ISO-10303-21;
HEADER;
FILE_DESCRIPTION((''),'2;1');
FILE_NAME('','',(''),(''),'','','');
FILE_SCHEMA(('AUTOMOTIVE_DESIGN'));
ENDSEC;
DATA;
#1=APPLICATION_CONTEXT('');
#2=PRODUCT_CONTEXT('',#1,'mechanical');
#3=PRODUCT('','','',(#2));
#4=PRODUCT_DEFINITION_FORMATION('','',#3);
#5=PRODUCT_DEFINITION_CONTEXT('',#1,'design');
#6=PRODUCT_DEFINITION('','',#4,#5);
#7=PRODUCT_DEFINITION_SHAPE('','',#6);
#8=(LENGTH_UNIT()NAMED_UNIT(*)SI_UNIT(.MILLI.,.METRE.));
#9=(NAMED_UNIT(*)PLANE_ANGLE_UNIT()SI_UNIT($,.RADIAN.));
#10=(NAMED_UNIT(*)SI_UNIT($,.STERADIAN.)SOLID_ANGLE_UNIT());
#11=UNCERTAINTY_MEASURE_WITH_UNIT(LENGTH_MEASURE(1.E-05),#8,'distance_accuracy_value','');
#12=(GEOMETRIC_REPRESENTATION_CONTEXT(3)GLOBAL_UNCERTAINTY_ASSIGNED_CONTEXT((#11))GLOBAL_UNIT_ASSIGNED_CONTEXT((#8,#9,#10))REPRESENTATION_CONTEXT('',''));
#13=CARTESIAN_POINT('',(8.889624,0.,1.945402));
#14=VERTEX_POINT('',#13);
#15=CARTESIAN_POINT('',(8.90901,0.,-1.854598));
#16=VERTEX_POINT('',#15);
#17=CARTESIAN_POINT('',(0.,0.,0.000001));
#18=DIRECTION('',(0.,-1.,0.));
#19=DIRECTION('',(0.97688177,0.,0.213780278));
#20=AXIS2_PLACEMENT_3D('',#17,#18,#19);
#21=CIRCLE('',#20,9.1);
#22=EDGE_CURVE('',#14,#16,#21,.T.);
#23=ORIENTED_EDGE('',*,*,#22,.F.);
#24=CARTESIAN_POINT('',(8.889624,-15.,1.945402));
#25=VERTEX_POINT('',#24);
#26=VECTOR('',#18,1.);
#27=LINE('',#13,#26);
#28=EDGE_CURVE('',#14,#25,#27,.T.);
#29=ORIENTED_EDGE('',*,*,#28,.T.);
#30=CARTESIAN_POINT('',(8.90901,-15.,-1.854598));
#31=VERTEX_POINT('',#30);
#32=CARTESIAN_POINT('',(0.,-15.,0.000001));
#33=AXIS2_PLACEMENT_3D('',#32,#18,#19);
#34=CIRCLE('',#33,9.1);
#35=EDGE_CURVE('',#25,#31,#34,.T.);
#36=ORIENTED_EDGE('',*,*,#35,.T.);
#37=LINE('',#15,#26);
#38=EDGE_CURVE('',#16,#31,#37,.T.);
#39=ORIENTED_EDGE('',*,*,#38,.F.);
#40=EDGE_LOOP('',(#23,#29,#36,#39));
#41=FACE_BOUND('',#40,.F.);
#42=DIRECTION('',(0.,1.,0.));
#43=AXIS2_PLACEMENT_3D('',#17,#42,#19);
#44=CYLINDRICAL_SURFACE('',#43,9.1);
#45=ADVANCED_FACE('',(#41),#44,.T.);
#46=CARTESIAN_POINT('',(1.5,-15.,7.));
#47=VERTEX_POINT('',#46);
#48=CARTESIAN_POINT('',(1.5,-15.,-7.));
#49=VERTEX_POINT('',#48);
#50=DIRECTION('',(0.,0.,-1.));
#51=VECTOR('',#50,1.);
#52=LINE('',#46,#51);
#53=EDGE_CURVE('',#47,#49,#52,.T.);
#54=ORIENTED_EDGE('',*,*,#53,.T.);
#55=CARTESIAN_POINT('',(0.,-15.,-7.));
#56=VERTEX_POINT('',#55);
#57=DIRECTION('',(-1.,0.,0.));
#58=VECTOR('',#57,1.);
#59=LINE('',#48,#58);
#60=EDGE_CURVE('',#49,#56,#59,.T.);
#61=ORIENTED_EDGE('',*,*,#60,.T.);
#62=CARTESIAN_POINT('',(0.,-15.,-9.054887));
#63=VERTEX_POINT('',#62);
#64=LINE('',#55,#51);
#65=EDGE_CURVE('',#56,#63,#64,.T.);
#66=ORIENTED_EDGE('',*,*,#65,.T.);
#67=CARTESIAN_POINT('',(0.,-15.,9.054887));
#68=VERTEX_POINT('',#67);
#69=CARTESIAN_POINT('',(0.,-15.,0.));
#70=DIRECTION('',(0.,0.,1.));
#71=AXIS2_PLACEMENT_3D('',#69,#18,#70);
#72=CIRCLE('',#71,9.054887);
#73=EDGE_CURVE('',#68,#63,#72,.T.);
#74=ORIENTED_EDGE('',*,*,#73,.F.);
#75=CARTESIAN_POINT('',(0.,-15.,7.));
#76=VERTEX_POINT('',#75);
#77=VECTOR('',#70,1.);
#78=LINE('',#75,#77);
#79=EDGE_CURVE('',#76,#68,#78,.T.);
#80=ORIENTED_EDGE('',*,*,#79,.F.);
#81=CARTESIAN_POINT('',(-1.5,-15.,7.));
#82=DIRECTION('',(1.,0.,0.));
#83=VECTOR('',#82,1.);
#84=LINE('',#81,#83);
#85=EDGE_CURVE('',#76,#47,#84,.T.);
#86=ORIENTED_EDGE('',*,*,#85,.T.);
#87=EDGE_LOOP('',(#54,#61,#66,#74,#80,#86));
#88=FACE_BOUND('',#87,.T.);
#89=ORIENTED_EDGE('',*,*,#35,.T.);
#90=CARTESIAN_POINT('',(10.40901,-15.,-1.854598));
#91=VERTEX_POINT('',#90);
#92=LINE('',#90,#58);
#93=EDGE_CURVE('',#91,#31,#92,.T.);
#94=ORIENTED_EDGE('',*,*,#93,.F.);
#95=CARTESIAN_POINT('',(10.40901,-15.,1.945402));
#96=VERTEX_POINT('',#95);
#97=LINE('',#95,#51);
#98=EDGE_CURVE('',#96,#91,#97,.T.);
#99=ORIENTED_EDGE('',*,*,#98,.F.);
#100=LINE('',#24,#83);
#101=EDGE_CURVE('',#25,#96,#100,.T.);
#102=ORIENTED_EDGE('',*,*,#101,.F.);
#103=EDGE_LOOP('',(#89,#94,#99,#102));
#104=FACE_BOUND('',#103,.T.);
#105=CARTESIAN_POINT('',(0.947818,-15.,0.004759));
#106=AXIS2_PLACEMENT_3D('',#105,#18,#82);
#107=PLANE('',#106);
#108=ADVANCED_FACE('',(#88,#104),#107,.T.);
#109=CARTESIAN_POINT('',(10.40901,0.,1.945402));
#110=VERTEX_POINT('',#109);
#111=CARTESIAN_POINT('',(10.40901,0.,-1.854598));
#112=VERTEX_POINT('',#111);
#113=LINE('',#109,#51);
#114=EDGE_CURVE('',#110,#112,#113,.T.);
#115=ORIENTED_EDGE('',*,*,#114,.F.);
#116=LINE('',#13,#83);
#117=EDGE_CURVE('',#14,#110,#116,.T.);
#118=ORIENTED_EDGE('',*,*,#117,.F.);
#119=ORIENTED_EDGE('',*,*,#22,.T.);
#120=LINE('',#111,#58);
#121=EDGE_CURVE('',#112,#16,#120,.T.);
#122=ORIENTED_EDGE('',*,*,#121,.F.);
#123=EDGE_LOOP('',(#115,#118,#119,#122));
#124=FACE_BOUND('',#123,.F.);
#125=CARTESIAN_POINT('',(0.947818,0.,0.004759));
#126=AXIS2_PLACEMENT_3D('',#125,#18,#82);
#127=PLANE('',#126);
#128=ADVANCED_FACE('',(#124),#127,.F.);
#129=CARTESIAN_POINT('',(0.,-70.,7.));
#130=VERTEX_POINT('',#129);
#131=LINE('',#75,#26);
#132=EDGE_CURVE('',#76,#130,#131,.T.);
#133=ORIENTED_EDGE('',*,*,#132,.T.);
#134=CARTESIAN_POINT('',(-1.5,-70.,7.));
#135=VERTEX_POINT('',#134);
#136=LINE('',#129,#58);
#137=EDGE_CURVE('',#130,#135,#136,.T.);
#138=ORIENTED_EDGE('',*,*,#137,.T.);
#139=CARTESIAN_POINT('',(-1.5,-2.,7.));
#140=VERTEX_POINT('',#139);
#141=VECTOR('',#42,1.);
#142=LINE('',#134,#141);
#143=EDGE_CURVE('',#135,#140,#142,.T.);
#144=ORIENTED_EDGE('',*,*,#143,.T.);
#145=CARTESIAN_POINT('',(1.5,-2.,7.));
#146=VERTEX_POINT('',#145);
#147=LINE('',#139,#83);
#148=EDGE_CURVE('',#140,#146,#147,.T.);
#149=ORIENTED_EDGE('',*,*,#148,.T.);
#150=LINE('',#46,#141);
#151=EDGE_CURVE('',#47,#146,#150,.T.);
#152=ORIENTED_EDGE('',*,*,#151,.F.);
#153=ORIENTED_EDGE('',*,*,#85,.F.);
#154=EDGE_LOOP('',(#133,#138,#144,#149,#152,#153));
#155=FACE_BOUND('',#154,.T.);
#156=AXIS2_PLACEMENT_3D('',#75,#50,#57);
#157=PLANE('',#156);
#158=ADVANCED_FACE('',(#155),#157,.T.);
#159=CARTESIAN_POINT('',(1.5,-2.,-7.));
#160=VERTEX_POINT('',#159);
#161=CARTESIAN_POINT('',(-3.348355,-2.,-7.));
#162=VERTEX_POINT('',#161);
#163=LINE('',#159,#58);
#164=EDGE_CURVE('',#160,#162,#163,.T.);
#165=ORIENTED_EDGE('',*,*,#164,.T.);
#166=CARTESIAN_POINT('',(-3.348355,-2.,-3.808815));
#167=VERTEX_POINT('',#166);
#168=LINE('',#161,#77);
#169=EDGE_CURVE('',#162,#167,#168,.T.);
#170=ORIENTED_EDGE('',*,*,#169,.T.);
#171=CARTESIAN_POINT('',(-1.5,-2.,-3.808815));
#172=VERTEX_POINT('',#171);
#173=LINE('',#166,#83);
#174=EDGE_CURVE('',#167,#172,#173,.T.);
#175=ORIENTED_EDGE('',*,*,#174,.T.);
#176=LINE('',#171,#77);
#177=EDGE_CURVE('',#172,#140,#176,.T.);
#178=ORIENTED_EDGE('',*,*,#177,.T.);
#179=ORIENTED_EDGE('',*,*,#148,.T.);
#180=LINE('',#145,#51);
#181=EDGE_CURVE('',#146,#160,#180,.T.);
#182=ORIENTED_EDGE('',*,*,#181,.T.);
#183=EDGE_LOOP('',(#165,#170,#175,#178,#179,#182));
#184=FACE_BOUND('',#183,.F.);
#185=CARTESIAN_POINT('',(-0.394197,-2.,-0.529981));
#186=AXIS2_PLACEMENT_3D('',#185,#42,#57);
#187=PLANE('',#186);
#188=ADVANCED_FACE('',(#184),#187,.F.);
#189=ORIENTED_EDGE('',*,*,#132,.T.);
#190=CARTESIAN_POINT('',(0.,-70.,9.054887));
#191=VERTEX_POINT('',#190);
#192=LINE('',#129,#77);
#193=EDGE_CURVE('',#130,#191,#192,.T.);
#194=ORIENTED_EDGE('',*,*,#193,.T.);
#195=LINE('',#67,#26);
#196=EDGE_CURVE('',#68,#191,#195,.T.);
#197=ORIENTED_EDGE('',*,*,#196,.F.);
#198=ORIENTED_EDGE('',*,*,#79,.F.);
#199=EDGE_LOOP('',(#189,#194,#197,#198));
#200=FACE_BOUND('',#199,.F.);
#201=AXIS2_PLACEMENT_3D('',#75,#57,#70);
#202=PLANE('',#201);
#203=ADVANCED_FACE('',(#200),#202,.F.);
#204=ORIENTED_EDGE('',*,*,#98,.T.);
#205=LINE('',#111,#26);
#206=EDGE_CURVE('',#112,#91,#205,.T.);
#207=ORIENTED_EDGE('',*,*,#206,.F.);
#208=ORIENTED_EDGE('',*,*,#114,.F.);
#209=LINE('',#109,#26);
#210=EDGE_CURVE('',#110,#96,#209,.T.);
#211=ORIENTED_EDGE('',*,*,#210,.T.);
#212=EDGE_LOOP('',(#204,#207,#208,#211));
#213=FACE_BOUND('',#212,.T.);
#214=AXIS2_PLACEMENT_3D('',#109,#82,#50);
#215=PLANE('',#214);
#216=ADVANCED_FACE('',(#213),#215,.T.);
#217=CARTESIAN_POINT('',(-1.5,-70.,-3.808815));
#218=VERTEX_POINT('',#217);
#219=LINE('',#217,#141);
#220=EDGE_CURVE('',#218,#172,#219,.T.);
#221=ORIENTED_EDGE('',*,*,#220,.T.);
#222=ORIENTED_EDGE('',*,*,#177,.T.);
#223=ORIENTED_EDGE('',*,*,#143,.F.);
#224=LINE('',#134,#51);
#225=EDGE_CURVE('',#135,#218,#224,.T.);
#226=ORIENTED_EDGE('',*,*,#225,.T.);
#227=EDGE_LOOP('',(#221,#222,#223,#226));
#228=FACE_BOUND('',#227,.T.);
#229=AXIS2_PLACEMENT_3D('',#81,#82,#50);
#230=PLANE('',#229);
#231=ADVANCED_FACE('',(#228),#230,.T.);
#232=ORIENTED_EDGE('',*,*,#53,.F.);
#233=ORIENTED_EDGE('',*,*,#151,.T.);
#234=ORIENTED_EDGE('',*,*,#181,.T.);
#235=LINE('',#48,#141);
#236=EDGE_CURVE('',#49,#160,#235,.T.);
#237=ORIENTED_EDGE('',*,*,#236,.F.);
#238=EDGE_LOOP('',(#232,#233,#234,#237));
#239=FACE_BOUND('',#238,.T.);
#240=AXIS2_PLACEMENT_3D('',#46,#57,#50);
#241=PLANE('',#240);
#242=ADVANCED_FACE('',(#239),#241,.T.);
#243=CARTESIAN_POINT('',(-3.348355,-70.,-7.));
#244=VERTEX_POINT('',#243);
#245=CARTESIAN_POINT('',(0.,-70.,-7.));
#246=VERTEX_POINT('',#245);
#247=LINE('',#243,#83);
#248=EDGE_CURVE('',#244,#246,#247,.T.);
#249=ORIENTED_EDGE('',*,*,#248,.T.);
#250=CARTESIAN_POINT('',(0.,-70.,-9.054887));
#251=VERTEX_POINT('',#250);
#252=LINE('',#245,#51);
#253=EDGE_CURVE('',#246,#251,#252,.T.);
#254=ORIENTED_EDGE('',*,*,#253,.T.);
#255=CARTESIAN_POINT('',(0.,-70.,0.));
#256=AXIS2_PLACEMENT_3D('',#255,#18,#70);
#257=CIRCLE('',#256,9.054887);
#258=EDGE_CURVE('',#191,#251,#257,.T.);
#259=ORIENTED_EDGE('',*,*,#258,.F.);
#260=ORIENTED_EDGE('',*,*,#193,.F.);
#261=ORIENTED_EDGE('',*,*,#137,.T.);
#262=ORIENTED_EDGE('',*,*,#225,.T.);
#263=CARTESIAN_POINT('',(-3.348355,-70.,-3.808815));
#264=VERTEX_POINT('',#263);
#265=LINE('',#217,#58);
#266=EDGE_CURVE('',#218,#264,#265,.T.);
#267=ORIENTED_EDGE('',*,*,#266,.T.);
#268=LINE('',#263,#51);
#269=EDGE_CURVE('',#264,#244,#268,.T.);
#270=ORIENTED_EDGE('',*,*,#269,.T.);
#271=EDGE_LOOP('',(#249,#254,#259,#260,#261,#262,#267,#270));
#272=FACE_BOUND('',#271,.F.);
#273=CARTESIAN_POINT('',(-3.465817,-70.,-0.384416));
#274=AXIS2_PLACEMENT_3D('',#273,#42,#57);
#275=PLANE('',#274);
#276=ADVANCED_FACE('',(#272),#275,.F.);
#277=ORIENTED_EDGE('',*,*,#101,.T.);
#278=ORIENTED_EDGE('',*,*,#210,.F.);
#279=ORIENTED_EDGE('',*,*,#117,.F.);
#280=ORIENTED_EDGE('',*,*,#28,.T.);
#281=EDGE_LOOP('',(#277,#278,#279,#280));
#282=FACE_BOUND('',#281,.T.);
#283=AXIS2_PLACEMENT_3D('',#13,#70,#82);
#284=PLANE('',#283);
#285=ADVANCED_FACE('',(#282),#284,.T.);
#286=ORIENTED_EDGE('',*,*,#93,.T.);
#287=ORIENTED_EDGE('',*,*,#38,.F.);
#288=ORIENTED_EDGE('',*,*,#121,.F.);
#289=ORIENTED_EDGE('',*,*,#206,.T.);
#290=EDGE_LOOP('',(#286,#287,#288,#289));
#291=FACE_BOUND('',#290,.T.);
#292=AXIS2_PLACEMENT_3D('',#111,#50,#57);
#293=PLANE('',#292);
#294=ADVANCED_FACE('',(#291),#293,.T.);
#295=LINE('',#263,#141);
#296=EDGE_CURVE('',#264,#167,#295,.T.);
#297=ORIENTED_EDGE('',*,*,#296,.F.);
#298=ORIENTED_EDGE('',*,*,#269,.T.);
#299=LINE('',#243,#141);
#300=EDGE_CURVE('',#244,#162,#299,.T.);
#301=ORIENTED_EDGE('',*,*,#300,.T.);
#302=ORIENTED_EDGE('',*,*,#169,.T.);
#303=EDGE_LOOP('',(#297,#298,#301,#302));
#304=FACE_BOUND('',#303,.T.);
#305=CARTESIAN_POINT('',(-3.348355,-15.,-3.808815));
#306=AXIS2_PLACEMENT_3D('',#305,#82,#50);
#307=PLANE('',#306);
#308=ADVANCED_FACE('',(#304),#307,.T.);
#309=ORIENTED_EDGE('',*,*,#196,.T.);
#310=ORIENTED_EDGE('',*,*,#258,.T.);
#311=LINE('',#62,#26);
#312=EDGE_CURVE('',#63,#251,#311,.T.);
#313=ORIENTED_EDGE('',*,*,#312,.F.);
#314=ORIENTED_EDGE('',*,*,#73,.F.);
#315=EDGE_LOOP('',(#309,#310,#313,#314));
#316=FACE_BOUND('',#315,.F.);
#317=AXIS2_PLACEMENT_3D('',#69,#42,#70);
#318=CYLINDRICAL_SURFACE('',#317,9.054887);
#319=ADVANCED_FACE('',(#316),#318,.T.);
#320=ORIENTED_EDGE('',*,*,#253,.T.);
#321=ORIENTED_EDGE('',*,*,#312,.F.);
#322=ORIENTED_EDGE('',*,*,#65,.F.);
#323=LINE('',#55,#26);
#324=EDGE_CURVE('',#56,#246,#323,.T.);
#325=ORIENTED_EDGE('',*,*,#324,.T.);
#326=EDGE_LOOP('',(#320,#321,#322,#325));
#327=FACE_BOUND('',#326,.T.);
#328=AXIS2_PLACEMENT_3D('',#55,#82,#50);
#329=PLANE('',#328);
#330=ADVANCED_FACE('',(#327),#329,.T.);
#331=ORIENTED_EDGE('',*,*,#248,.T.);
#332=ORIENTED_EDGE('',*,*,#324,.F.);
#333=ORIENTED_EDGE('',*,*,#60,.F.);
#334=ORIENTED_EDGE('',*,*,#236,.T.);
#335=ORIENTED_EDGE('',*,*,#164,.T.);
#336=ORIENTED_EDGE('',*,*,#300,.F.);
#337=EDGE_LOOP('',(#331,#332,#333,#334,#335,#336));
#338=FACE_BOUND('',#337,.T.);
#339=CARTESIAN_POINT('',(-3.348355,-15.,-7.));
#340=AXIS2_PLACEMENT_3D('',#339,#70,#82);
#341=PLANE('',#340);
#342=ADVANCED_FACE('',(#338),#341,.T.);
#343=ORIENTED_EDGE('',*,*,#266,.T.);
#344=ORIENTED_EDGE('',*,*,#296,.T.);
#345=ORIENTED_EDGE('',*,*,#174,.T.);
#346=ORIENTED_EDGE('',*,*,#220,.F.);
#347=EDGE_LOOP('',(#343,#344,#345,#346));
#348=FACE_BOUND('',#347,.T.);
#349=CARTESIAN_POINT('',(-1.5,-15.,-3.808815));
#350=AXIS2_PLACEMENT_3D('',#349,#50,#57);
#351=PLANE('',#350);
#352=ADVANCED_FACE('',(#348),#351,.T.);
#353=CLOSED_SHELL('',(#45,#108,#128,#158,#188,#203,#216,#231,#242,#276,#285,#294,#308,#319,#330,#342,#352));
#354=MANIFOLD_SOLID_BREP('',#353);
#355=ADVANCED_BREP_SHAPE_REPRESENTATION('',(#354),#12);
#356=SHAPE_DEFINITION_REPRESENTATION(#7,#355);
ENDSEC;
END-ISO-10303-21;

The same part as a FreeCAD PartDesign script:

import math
import FreeCAD as App
import Part
import Sketcher
Q = App.Units.Quantity


def add_polygon(sketch, points):
    """Adds a closed chain of lines whose ends are joined by coincident constraints."""
    first, n = sketch.GeometryCount, len(points)
    for a, b in zip(points, points[1:] + points[:1]):
        sketch.addGeometry(Part.LineSegment(App.Vector(*a, 0), App.Vector(*b, 0)), False)
    for i in range(n):
        sketch.addConstraint(Sketcher.Constraint("Coincident", first + i, 2, first + (i + 1) % n, 1))

doc = App.newDocument("Part")
params = doc.addObject("Spreadsheet::Sheet", "Params")
for row, (alias, value) in enumerate([
    ("sketch1_radius", "9.1 mm"),
    ("sketch1_width", "1.5 mm"),
    ("sketch1_height", "3.8 mm"),
    ("pad1_length", "15 mm"),
    ("sketch2_width", "3 mm"),
    ("sketch2_height", "14 mm"),
    ("pocket1_length", "13 mm"),
    ("sketch3_width", "1.5 mm"),
    ("pad2_length", "55 mm"),
], start=1):
    params.set(f"A{row}", alias)
    params.set(f"B{row}", "=" + value)
    params.setAlias(f"B{row}", alias)

body = doc.addObject("PartDesign::Body", "Body")

# Sketch on XZ plane
sketch1 = body.newObject("Sketcher::SketchObject", "Sketch")
sketch1.AttachmentSupport = (doc.getObject("XZ_Plane"), [""])
sketch1.MapMode = "FlatFace"
sketch1.addGeometry([
    Part.ArcOfCircle(Part.Circle(App.Vector(0, 0, 0), App.Vector(0, 0, 1), 9.1), math.radians(12), math.radians(348)),
    Part.LineSegment(App.Vector(8.9, -1.9, 0), App.Vector(10.4, -1.9, 0)),
    Part.LineSegment(App.Vector(10.4, -1.9, 0), App.Vector(10.4, 1.9, 0)),
    Part.LineSegment(App.Vector(10.4, 1.9, 0), App.Vector(8.9, 1.9, 0)),
], False)
sketch1.addConstraint([
    Sketcher.Constraint("Coincident", 0, 2, 1, 1),
    Sketcher.Constraint("Coincident", 1, 2, 2, 1),
    Sketcher.Constraint("Coincident", 2, 2, 3, 1),
    Sketcher.Constraint("Coincident", 3, 2, 0, 1),
    Sketcher.Constraint("Horizontal", 1),
    Sketcher.Constraint("Vertical", 2),
    Sketcher.Constraint("Horizontal", 3),
    Sketcher.Constraint("Coincident", 0, 3, -1, 1),
    Sketcher.Constraint("Radius", 0, Q("9.1 mm")),
    Sketcher.Constraint("DistanceX", 1, 1, 1, 2, Q("1.5 mm")),
    Sketcher.Constraint("DistanceY", 2, 1, 2, 2, Q("3.8 mm")),
    Sketcher.Constraint("DistanceY", 0, 2, -1, 1, Q("1.854598 mm")),
])
sketch1.setExpression("Constraints[8]", "Params.sketch1_radius")
sketch1.setExpression("Constraints[9]", "Params.sketch1_width")
sketch1.setExpression("Constraints[10]", "Params.sketch1_height")
pad1 = body.newObject("PartDesign::Pad", "Pad")
pad1.Profile = sketch1
pad1.setExpression("Length", "Params.pad1_length")

# Sketch on XZ plane
sketch2 = body.newObject("Sketcher::SketchObject", "Sketch001")
sketch2.AttachmentSupport = (doc.getObject("XZ_Plane"), [""])
sketch2.MapMode = "FlatFace"
sketch2.AttachmentOffset = App.Placement(App.Vector(0, 0, 15), App.Rotation())
add_polygon(sketch2, [(1.5, 7), (-1.5, 7), (-1.5, -3.8), (-3.3, -3.8), (-3.3, -7), (1.5, -7)])  # lines 0-5
sketch2.addConstraint([
    Sketcher.Constraint("Horizontal", 0),
    Sketcher.Constraint("Vertical", 1),
    Sketcher.Constraint("Horizontal", 2),
    Sketcher.Constraint("Vertical", 3),
    Sketcher.Constraint("Horizontal", 4),
    Sketcher.Constraint("Vertical", 5),
    Sketcher.Constraint("Symmetric", 0, 2, 4, 2, -1, 1),
    Sketcher.Constraint("DistanceX", 0, 2, 0, 1, Q("3 mm")),
    Sketcher.Constraint("DistanceY", 5, 1, 5, 2, Q("14 mm")),
    Sketcher.Constraint("DistanceX", 2, 2, 2, 1, Q("1.848355 mm")),
    Sketcher.Constraint("DistanceY", 1, 2, 1, 1, Q("10.808815 mm")),
])
sketch2.setExpression("Constraints[13]", "Params.sketch2_width")
sketch2.setExpression("Constraints[14]", "Params.sketch2_height")
pocket1 = body.newObject("PartDesign::Pocket", "Pocket")
pocket1.Profile = sketch2
pocket1.setExpression("Length", "Params.pocket1_length")

# Sketch on XZ plane
sketch3 = body.newObject("Sketcher::SketchObject", "Sketch002")
sketch3.AttachmentSupport = (doc.getObject("XZ_Plane"), [""])
sketch3.MapMode = "FlatFace"
sketch3.AttachmentOffset = App.Placement(App.Vector(0, 0, 15), App.Rotation())
sketch3.addGeometry([
    Part.LineSegment(App.Vector(-1.5, 7, 0), App.Vector(0, 7, 0)),  # 0
    Part.LineSegment(App.Vector(0, 7, 0), App.Vector(0, 9.1, 0)),  # 1
    Part.ArcOfCircle(Part.Circle(App.Vector(0, 0, 0), App.Vector(0, 0, 1), 9.1), math.radians(90), math.radians(270)),  # 2
    Part.LineSegment(App.Vector(0, -9.1, 0), App.Vector(0, -7, 0)),  # 3
    Part.LineSegment(App.Vector(0, -7, 0), App.Vector(-3.3, -7, 0)),  # 4
    Part.LineSegment(App.Vector(-3.3, -7, 0), App.Vector(-3.3, -3.8, 0)),  # 5
    Part.LineSegment(App.Vector(-3.3, -3.8, 0), App.Vector(-1.5, -3.8, 0)),  # 6
    Part.LineSegment(App.Vector(-1.5, -3.8, 0), App.Vector(-1.5, 7, 0)),  # 7
], False)
sketch3.addConstraint([
    Sketcher.Constraint("Coincident", 0, 2, 1, 1),
    Sketcher.Constraint("Coincident", 1, 2, 2, 1),
    Sketcher.Constraint("Coincident", 2, 2, 3, 1),
    Sketcher.Constraint("Coincident", 3, 2, 4, 1),
    Sketcher.Constraint("Coincident", 4, 2, 5, 1),
    Sketcher.Constraint("Coincident", 5, 2, 6, 1),
    Sketcher.Constraint("Coincident", 6, 2, 7, 1),
    Sketcher.Constraint("Coincident", 7, 2, 0, 1),
    Sketcher.Constraint("Horizontal", 0),
    Sketcher.Constraint("Vertical", 1),
    Sketcher.Constraint("Vertical", 3),
    Sketcher.Constraint("Horizontal", 4),
    Sketcher.Constraint("Vertical", 5),
    Sketcher.Constraint("Horizontal", 6),
    Sketcher.Constraint("Vertical", 7),
    Sketcher.Constraint("Coincident", 2, 3, -1, 1),
    Sketcher.Constraint("Symmetric", 0, 2, 3, 2, -1, 1),
    Sketcher.Constraint("PointOnObject", 0, 2, -2),
    Sketcher.Constraint("DistanceX", 0, 1, 0, 2, Q("1.5 mm")),
    Sketcher.Constraint("DistanceY", -1, 1, 0, 2, Q("7 mm")),
    Sketcher.Constraint("Radius", 2, Q("9.054887 mm")),
    Sketcher.Constraint("DistanceX", 4, 2, 4, 1, Q("3.348355 mm")),
    Sketcher.Constraint("DistanceY", 5, 1, 5, 2, Q("3.191185 mm")),
])
sketch3.setExpression("Constraints[18]", "Params.sketch3_width")
pad2 = body.newObject("PartDesign::Pad", "Pad001")
pad2.Profile = sketch3
pad2.setExpression("Length", "Params.pad2_length")

doc.recompute()
